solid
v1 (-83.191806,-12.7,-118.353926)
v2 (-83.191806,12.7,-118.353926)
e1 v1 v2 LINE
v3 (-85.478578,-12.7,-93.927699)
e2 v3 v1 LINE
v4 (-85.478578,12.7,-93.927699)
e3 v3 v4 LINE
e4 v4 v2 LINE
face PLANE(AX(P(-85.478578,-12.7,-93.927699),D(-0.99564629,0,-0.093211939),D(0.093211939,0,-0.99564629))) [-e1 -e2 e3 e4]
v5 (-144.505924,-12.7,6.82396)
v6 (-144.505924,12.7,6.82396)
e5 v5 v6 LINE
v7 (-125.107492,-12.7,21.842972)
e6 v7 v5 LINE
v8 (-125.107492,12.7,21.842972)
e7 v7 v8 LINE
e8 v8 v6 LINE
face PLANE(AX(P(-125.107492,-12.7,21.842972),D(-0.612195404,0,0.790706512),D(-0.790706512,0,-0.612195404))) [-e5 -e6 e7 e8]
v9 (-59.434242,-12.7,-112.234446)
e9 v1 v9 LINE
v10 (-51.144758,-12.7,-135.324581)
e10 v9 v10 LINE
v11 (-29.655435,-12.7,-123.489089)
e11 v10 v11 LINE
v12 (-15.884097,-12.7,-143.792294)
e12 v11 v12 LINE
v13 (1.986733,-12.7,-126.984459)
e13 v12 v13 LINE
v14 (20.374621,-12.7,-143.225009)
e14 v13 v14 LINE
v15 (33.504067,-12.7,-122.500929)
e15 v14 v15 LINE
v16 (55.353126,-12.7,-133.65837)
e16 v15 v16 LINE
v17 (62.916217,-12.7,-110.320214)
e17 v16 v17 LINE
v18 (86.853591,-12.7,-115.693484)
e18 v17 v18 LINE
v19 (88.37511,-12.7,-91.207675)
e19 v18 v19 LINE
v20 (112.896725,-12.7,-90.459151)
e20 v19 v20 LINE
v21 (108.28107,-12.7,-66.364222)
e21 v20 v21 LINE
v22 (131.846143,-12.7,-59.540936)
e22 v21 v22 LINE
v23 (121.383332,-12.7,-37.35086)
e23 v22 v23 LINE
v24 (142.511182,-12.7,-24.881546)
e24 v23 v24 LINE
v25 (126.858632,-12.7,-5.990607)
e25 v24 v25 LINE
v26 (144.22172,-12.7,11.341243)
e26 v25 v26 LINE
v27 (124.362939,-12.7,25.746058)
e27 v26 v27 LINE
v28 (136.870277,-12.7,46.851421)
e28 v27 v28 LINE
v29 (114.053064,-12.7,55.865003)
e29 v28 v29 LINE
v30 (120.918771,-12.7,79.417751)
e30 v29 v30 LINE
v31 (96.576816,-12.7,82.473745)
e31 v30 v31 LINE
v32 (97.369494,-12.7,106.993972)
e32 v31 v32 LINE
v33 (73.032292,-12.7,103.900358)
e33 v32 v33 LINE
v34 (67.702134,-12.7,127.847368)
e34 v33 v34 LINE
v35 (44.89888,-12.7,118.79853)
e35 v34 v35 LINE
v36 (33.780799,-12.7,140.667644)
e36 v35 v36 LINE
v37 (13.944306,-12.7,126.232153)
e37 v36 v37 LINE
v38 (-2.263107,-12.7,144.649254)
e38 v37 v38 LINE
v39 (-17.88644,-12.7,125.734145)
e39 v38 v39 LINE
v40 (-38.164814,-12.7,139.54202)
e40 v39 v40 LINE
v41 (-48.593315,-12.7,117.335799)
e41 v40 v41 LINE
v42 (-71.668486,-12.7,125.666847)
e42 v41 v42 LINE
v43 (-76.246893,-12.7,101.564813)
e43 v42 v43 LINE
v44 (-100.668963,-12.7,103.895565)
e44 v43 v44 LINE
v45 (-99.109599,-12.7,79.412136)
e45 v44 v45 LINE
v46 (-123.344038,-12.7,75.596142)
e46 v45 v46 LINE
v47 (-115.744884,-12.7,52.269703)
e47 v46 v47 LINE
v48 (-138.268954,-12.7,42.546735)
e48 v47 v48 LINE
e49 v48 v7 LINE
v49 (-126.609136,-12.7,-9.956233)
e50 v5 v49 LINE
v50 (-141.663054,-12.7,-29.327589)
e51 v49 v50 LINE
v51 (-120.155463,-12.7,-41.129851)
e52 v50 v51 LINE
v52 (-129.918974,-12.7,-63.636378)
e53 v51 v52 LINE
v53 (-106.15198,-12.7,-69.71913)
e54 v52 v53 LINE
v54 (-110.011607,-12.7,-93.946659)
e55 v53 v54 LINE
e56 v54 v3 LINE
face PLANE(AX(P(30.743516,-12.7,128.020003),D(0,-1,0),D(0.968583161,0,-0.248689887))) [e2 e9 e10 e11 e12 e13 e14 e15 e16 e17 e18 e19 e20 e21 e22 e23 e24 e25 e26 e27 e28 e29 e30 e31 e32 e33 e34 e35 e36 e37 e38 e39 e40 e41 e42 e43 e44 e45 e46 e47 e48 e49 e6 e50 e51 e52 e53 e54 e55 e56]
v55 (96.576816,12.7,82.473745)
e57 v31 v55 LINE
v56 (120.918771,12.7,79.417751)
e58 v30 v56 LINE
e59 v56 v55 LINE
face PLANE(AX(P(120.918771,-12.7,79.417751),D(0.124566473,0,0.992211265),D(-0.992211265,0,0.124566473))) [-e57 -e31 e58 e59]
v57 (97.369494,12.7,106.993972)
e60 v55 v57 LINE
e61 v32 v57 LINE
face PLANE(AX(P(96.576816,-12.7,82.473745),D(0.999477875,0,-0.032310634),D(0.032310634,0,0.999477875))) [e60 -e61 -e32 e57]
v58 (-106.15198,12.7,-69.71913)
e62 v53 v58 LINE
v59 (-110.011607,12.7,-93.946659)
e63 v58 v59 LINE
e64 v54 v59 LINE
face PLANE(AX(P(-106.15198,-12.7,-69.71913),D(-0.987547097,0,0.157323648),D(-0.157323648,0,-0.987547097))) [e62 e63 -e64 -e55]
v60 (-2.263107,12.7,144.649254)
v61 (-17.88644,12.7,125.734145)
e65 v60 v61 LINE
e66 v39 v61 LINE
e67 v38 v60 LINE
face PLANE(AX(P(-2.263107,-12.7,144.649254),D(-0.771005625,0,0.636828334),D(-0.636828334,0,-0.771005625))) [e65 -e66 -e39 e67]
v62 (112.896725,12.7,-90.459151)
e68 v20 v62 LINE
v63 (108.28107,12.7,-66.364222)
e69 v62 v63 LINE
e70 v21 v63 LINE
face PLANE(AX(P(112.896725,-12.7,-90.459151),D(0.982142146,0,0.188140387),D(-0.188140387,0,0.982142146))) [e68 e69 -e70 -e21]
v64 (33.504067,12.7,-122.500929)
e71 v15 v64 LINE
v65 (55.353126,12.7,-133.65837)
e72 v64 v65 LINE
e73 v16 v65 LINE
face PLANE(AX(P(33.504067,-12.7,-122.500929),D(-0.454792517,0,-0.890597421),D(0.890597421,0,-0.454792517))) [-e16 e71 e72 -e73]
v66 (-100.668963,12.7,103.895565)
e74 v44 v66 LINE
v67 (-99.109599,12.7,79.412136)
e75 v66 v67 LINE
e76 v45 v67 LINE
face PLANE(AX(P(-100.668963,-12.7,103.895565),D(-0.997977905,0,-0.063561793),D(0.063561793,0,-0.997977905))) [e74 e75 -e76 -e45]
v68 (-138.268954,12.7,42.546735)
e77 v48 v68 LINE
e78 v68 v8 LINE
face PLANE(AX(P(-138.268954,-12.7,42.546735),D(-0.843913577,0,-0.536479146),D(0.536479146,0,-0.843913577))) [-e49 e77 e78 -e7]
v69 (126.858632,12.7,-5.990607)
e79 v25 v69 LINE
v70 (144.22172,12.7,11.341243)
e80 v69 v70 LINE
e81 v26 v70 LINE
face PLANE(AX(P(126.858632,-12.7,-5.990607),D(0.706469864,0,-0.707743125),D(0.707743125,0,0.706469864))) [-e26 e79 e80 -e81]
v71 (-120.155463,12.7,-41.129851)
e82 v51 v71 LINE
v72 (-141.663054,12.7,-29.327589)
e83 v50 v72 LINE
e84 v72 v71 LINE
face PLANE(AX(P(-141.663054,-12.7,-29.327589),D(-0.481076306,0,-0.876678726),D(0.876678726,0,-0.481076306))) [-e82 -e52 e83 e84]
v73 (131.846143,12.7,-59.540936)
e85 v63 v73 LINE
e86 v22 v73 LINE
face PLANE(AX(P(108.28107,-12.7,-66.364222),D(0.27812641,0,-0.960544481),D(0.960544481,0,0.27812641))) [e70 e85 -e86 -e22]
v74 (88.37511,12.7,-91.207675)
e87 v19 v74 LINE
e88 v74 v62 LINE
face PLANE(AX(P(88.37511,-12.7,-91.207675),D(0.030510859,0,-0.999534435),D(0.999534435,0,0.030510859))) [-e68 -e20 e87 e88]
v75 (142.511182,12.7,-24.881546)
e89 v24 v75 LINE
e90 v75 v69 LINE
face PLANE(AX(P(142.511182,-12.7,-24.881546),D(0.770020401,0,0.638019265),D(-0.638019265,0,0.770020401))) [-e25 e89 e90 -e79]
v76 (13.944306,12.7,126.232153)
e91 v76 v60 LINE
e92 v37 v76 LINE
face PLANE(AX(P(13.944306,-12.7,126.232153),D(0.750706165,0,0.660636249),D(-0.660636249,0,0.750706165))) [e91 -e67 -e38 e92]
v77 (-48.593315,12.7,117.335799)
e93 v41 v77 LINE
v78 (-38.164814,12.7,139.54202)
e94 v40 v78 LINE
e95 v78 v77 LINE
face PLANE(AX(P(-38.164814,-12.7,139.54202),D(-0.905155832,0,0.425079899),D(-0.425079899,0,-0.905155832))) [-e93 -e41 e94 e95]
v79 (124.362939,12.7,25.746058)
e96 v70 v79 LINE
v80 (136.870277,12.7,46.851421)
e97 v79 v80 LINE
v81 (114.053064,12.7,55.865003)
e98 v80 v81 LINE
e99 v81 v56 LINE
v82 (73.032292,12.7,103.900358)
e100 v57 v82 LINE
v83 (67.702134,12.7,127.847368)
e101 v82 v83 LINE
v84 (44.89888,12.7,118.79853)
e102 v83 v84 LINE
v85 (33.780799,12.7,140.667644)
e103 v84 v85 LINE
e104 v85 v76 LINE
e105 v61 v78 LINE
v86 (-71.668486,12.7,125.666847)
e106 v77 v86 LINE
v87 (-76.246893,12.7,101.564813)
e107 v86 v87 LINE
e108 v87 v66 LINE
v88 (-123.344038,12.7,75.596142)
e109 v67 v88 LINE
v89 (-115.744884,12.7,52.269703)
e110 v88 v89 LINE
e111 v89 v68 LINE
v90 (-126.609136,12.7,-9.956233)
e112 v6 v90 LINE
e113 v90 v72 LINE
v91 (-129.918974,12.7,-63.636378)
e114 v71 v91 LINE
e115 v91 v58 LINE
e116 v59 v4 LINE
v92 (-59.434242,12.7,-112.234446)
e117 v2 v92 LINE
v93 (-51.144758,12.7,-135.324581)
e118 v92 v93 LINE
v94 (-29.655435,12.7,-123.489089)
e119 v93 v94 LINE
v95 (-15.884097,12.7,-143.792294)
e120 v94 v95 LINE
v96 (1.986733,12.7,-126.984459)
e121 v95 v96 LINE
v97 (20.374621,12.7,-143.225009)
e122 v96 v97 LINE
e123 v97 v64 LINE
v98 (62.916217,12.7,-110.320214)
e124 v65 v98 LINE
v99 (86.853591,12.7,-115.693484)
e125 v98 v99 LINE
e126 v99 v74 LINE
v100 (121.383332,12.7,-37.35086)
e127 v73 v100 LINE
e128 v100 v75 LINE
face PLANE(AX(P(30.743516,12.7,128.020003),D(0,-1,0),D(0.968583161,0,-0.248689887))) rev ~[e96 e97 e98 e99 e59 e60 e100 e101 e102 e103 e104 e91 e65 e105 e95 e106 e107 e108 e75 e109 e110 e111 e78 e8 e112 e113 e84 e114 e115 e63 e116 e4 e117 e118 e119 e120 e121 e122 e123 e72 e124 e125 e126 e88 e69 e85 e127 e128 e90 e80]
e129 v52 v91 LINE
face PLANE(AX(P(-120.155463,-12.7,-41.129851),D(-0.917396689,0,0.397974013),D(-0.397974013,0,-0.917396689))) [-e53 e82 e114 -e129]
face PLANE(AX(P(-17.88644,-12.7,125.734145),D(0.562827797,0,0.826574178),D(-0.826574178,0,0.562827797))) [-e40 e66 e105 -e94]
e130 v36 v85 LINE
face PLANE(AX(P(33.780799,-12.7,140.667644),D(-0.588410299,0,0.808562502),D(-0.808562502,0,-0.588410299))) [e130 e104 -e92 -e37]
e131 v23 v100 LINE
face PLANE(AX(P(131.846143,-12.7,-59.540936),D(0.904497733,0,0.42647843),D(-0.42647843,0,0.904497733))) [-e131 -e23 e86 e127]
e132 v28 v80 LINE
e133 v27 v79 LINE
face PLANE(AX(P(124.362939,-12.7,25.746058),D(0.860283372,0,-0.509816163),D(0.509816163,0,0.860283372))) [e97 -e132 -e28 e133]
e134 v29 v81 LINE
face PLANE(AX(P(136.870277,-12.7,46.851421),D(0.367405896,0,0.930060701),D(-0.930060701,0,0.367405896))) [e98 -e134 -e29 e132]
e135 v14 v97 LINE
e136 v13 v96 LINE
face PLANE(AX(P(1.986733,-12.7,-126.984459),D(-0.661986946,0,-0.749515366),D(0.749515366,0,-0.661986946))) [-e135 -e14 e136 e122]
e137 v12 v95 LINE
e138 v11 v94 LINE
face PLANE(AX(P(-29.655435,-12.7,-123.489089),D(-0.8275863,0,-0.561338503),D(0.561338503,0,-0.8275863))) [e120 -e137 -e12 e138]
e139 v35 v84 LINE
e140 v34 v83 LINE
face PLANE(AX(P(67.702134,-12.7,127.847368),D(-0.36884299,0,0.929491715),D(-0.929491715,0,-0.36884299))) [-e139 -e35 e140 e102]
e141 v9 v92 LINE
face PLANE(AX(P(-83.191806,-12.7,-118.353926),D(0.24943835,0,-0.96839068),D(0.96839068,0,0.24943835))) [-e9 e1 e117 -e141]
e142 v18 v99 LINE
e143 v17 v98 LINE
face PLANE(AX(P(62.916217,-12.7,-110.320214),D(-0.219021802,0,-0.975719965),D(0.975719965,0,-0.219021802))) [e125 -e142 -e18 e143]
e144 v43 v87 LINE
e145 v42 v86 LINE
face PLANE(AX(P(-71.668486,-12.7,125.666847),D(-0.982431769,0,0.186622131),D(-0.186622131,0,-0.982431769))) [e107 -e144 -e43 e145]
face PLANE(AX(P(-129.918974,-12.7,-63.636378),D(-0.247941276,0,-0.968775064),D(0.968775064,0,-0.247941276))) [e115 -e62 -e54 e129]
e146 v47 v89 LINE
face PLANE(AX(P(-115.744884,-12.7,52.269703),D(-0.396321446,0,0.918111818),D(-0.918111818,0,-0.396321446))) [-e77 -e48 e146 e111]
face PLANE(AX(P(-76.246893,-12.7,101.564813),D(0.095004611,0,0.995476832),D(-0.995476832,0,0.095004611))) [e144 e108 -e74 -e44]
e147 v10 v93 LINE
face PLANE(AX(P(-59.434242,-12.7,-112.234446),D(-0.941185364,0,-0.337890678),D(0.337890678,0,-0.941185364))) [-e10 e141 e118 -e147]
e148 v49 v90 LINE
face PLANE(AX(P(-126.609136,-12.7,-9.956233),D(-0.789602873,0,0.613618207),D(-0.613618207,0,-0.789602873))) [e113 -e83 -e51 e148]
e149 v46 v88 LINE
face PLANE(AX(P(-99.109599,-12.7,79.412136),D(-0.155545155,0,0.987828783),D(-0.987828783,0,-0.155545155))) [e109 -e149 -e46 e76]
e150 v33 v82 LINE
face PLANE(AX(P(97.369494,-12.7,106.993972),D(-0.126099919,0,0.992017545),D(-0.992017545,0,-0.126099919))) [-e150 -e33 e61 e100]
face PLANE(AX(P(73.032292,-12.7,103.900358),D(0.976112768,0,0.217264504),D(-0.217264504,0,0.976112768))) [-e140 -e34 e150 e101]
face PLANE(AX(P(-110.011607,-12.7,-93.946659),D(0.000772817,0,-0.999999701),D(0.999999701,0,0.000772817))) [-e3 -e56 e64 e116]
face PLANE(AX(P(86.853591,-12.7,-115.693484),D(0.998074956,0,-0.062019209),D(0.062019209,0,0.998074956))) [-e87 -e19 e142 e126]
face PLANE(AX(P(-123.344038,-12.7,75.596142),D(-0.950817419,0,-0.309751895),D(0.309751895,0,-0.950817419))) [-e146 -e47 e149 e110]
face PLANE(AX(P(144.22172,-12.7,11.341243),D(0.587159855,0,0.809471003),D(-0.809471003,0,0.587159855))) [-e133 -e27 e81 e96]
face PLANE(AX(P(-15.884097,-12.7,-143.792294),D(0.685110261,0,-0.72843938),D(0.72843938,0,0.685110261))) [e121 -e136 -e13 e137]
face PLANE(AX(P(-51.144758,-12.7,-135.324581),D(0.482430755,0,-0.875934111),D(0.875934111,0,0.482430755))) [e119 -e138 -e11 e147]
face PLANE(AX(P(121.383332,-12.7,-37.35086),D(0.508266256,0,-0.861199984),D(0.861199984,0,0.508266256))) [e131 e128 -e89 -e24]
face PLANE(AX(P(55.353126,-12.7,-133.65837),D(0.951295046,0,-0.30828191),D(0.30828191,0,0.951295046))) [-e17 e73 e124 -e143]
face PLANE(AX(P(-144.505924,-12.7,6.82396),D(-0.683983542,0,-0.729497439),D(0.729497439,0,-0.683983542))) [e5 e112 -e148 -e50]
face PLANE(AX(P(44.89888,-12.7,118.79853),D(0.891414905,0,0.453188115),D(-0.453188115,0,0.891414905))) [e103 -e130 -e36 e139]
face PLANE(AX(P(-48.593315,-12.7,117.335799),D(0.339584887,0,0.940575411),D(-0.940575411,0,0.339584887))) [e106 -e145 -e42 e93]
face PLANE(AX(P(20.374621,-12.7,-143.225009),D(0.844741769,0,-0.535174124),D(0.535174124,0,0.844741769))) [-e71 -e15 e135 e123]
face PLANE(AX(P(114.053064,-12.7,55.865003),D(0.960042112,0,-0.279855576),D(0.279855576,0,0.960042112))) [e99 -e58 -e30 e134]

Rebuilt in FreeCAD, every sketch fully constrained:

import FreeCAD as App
import Part
import Sketcher
Q = App.Units.Quantity

doc = App.newDocument("Part")
params = doc.addObject("Spreadsheet::Sheet", "Params")
for row, (alias, value) in enumerate([
    ("sketch1_diameter", "10 in"),
    ("pad1_length", "1 in"),
    ("pad2_length", "1 in"),
], start=1):
    params.set(f"A{row}", alias)
    params.set(f"B{row}", "=" + value)
    params.setAlias(f"B{row}", alias)

body = doc.addObject("PartDesign::Body", "Body")

sketch1 = doc.addObject("Sketcher::SketchObject", "Sketch")
body.addObject(sketch1)
sketch1.AttachmentSupport = (doc.XZ_Plane, [""])
sketch1.MapMode = "FlatFace"
sketch1.addGeometry(Part.Circle(App.Vector(0, 0, 0), App.Vector(0, 0, 1), 127), False)
sketch1.addConstraint([
    Sketcher.Constraint("Coincident", 0, 3, -1, 1),
    Sketcher.Constraint("Diameter", 0, Q("10 in")),
])
sketch1.setExpression("Constraints[1]", "Params.sketch1_diameter")
pad1 = doc.addObject("PartDesign::Pad", "Pad")
body.addObject(pad1)
pad1.Profile = sketch1
pad1.setExpression("Length", "Params.pad1_length")
pad1.Midplane = True

sketch2 = doc.addObject("Sketcher::SketchObject", "Sketch001")
body.addObject(sketch2)
sketch2.AttachmentSupport = (doc.XZ_Plane, [""])
sketch2.MapMode = "FlatFace"
sketch2.AttachmentOffset = App.Placement(App.Vector(0, 0, 0.5 * 25.4), App.Rotation())
sketch2.addGeometry([
    Part.LineSegment(App.Vector(-2, 145, 0), App.Vector(-18, 126, 0)),
    Part.LineSegment(App.Vector(-18, 126, 0), App.Vector(14, 126, 0)),
    Part.LineSegment(App.Vector(14, 126, 0), App.Vector(-2, 145, 0)),
], False)
sketch2.addConstraint([
    Sketcher.Constraint("Coincident", 0, 2, 1, 1),
    Sketcher.Constraint("Coincident", 1, 2, 2, 1),
    Sketcher.Constraint("Coincident", 2, 2, 0, 1),
    Sketcher.Constraint("Equal", 0, 2),
    Sketcher.Constraint("DistanceY", 1, 2, 2, 2, Q("18.417102 mm")),
    Sketcher.Constraint("Distance", 1, Q("31.834641 mm")),
    Sketcher.Constraint("DistanceX", 0, 2, -1, 1, Q("17.88644 mm")),
    Sketcher.Constraint("DistanceY", 0, 2, 2, 2, Q("18.915109 mm")),
    Sketcher.Constraint("DistanceY", -1, 1, 0, 2, Q("125.734145 mm")),
])
pad2 = doc.addObject("PartDesign::Pad", "Pad001")
body.addObject(pad2)
pad2.Profile = sketch2
pad2.setExpression("Length", "Params.pad2_length")
pad2.Reversed = True
body2 = doc.addObject("PartDesign::Body", "Body001")
doc.recompute()

body2.BaseFeature = body
doc.recompute()

body3 = doc.addObject("PartDesign::Body", "Body002")
body3.BaseFeature = body
body3.Placement = App.Placement(App.Vector(0, 0, 0), App.Rotation(App.Vector(0, -1, 0), 14.4))
boolean = doc.addObject("PartDesign::Boolean", "Boolean")
body2.addObject(boolean)
boolean.Type = "Fuse"
boolean.addObjects([body3])
doc.recompute()

body4 = doc.addObject("PartDesign::Body", "Body003")
body4.BaseFeature = body
body4.Placement = App.Placement(App.Vector(0, 0, 0), App.Rotation(App.Vector(0, -1, 0), 28.8))
boolean2 = doc.addObject("PartDesign::Boolean", "Boolean001")
body2.addObject(boolean2)
boolean2.Type = "Fuse"
boolean2.addObjects([body4])
doc.recompute()

body5 = doc.addObject("PartDesign::Body", "Body004")
body5.BaseFeature = body
body5.Placement = App.Placement(App.Vector(0, 0, 0), App.Rotation(App.Vector(0, -1, 0), 43.2))
boolean3 = doc.addObject("PartDesign::Boolean", "Boolean002")
body2.addObject(boolean3)
boolean3.Type = "Fuse"
boolean3.addObjects([body5])
doc.recompute()

body6 = doc.addObject("PartDesign::Body", "Body005")
body6.BaseFeature = body
body6.Placement = App.Placement(App.Vector(0, 0, 0), App.Rotation(App.Vector(0, -1, 0), 57.6))
boolean4 = doc.addObject("PartDesign::Boolean", "Boolean003")
body2.addObject(boolean4)
boolean4.Type = "Fuse"
boolean4.addObjects([body6])
doc.recompute()

body7 = doc.addObject("PartDesign::Body", "Body006")
body7.BaseFeature = body
body7.Placement = App.Placement(App.Vector(0, 0, 0), App.Rotation(App.Vector(0, -1, 0), 72))
boolean5 = doc.addObject("PartDesign::Boolean", "Boolean004")
body2.addObject(boolean5)
boolean5.Type = "Fuse"
boolean5.addObjects([body7])
doc.recompute()

body8 = doc.addObject("PartDesign::Body", "Body007")
body8.BaseFeature = body
body8.Placement = App.Placement(App.Vector(0, 0, 0), App.Rotation(App.Vector(0, -1, 0), 86.4))
boolean6 = doc.addObject("PartDesign::Boolean", "Boolean005")
body2.addObject(boolean6)
boolean6.Type = "Fuse"
boolean6.addObjects([body8])
doc.recompute()

body9 = doc.addObject("PartDesign::Body", "Body008")
body9.BaseFeature = body
body9.Placement = App.Placement(App.Vector(0, 0, 0), App.Rotation(App.Vector(0, -1, 0), 100.8))
boolean7 = doc.addObject("PartDesign::Boolean", "Boolean006")
body2.addObject(boolean7)
boolean7.Type = "Fuse"
boolean7.addObjects([body9])
doc.recompute()

body10 = doc.addObject("PartDesign::Body", "Body009")
body10.BaseFeature = body
body10.Placement = App.Placement(App.Vector(0, 0, 0), App.Rotation(App.Vector(0, -1, 0), 115.2))
boolean8 = doc.addObject("PartDesign::Boolean", "Boolean007")
body2.addObject(boolean8)
boolean8.Type = "Fuse"
boolean8.addObjects([body10])
doc.recompute()

body11 = doc.addObject("PartDesign::Body", "Body010")
body11.BaseFeature = body
body11.Placement = App.Placement(App.Vector(0, 0, 0), App.Rotation(App.Vector(0, -1, 0), 129.6))
boolean9 = doc.addObject("PartDesign::Boolean", "Boolean008")
body2.addObject(boolean9)
boolean9.Type = "Fuse"
boolean9.addObjects([body11])
doc.recompute()

body12 = doc.addObject("PartDesign::Body", "Body011")
body12.BaseFeature = body
body12.Placement = App.Placement(App.Vector(0, 0, 0), App.Rotation(App.Vector(0, -1, 0), 144))
boolean10 = doc.addObject("PartDesign::Boolean", "Boolean009")
body2.addObject(boolean10)
boolean10.Type = "Fuse"
boolean10.addObjects([body12])
doc.recompute()

body13 = doc.addObject("PartDesign::Body", "Body012")
body13.BaseFeature = body
body13.Placement = App.Placement(App.Vector(0, 0, 0), App.Rotation(App.Vector(0, -1, 0), 158.4))
boolean11 = doc.addObject("PartDesign::Boolean", "Boolean010")
body2.addObject(boolean11)
boolean11.Type = "Fuse"
boolean11.addObjects([body13])
doc.recompute()

body14 = doc.addObject("PartDesign::Body", "Body013")
body14.BaseFeature = body
body14.Placement = App.Placement(App.Vector(0, 0, 0), App.Rotation(App.Vector(0, -1, 0), 172.8))
boolean12 = doc.addObject("PartDesign::Boolean", "Boolean011")
body2.addObject(boolean12)
boolean12.Type = "Fuse"
boolean12.addObjects([body14])
doc.recompute()

body15 = doc.addObject("PartDesign::Body", "Body014")
body15.BaseFeature = body
body15.Placement = App.Placement(App.Vector(0, 0, 0), App.Rotation(App.Vector(0, -1, 0), 187.2))
boolean13 = doc.addObject("PartDesign::Boolean", "Boolean012")
body2.addObject(boolean13)
boolean13.Type = "Fuse"
boolean13.addObjects([body15])
doc.recompute()

body16 = doc.addObject("PartDesign::Body", "Body015")
body16.BaseFeature = body
body16.Placement = App.Placement(App.Vector(0, 0, 0), App.Rotation(App.Vector(0, -1, 0), 201.6))
boolean14 = doc.addObject("PartDesign::Boolean", "Boolean013")
body2.addObject(boolean14)
boolean14.Type = "Fuse"
boolean14.addObjects([body16])
doc.recompute()

body17 = doc.addObject("PartDesign::Body", "Body016")
body17.BaseFeature = body
body17.Placement = App.Placement(App.Vector(0, 0, 0), App.Rotation(App.Vector(0, -1, 0), 216))
boolean15 = doc.addObject("PartDesign::Boolean", "Boolean014")
body2.addObject(boolean15)
boolean15.Type = "Fuse"
boolean15.addObjects([body17])
doc.recompute()

body18 = doc.addObject("PartDesign::Body", "Body017")
body18.BaseFeature = body
body18.Placement = App.Placement(App.Vector(0, 0, 0), App.Rotation(App.Vector(0, -1, 0), 230.4))
boolean16 = doc.addObject("PartDesign::Boolean", "Boolean015")
body2.addObject(boolean16)
boolean16.Type = "Fuse"
boolean16.addObjects([body18])
doc.recompute()

body19 = doc.addObject("PartDesign::Body", "Body018")
body19.BaseFeature = body
body19.Placement = App.Placement(App.Vector(0, 0, 0), App.Rotation(App.Vector(0, -1, 0), 244.8))
boolean17 = doc.addObject("PartDesign::Boolean", "Boolean016")
body2.addObject(boolean17)
boolean17.Type = "Fuse"
boolean17.addObjects([body19])
doc.recompute()

body20 = doc.addObject("PartDesign::Body", "Body019")
body20.BaseFeature = body
body20.Placement = App.Placement(App.Vector(0, 0, 0), App.Rotation(App.Vector(0, -1, 0), 259.2))
boolean18 = doc.addObject("PartDesign::Boolean", "Boolean017")
body2.addObject(boolean18)
boolean18.Type = "Fuse"
boolean18.addObjects([body20])
doc.recompute()

body21 = doc.addObject("PartDesign::Body", "Body020")
body21.BaseFeature = body
body21.Placement = App.Placement(App.Vector(0, 0, 0), App.Rotation(App.Vector(0, -1, 0), 273.6))
boolean19 = doc.addObject("PartDesign::Boolean", "Boolean018")
body2.addObject(boolean19)
boolean19.Type = "Fuse"
boolean19.addObjects([body21])
doc.recompute()

body22 = doc.addObject("PartDesign::Body", "Body021")
body22.BaseFeature = body
body22.Placement = App.Placement(App.Vector(0, 0, 0), App.Rotation(App.Vector(0, -1, 0), 288))
boolean20 = doc.addObject("PartDesign::Boolean", "Boolean019")
body2.addObject(boolean20)
boolean20.Type = "Fuse"
boolean20.addObjects([body22])
doc.recompute()

body23 = doc.addObject("PartDesign::Body", "Body022")
body23.BaseFeature = body
body23.Placement = App.Placement(App.Vector(0, 0, 0), App.Rotation(App.Vector(0, -1, 0), 302.4))
boolean21 = doc.addObject("PartDesign::Boolean", "Boolean020")
body2.addObject(boolean21)
boolean21.Type = "Fuse"
boolean21.addObjects([body23])
doc.recompute()

body24 = doc.addObject("PartDesign::Body", "Body023")
body24.BaseFeature = body
body24.Placement = App.Placement(App.Vector(0, 0, 0), App.Rotation(App.Vector(0, -1, 0), 316.8))
boolean22 = doc.addObject("PartDesign::Boolean", "Boolean021")
body2.addObject(boolean22)
boolean22.Type = "Fuse"
boolean22.addObjects([body24])
doc.recompute()

body25 = doc.addObject("PartDesign::Body", "Body024")
body25.BaseFeature = body
body25.Placement = App.Placement(App.Vector(0, 0, 0), App.Rotation(App.Vector(0, -1, 0), 331.2))
boolean23 = doc.addObject("PartDesign::Boolean", "Boolean022")
body2.addObject(boolean23)
boolean23.Type = "Fuse"
boolean23.addObjects([body25])
doc.recompute()

body.Placement = App.Placement(App.Vector(0, 0, 0), App.Rotation(App.Vector(0, -1, 0), 345.6))
boolean24 = doc.addObject("PartDesign::Boolean", "Boolean023")
body2.addObject(boolean24)
boolean24.Type = "Fuse"
boolean24.addObjects([body])

doc.recompute()
